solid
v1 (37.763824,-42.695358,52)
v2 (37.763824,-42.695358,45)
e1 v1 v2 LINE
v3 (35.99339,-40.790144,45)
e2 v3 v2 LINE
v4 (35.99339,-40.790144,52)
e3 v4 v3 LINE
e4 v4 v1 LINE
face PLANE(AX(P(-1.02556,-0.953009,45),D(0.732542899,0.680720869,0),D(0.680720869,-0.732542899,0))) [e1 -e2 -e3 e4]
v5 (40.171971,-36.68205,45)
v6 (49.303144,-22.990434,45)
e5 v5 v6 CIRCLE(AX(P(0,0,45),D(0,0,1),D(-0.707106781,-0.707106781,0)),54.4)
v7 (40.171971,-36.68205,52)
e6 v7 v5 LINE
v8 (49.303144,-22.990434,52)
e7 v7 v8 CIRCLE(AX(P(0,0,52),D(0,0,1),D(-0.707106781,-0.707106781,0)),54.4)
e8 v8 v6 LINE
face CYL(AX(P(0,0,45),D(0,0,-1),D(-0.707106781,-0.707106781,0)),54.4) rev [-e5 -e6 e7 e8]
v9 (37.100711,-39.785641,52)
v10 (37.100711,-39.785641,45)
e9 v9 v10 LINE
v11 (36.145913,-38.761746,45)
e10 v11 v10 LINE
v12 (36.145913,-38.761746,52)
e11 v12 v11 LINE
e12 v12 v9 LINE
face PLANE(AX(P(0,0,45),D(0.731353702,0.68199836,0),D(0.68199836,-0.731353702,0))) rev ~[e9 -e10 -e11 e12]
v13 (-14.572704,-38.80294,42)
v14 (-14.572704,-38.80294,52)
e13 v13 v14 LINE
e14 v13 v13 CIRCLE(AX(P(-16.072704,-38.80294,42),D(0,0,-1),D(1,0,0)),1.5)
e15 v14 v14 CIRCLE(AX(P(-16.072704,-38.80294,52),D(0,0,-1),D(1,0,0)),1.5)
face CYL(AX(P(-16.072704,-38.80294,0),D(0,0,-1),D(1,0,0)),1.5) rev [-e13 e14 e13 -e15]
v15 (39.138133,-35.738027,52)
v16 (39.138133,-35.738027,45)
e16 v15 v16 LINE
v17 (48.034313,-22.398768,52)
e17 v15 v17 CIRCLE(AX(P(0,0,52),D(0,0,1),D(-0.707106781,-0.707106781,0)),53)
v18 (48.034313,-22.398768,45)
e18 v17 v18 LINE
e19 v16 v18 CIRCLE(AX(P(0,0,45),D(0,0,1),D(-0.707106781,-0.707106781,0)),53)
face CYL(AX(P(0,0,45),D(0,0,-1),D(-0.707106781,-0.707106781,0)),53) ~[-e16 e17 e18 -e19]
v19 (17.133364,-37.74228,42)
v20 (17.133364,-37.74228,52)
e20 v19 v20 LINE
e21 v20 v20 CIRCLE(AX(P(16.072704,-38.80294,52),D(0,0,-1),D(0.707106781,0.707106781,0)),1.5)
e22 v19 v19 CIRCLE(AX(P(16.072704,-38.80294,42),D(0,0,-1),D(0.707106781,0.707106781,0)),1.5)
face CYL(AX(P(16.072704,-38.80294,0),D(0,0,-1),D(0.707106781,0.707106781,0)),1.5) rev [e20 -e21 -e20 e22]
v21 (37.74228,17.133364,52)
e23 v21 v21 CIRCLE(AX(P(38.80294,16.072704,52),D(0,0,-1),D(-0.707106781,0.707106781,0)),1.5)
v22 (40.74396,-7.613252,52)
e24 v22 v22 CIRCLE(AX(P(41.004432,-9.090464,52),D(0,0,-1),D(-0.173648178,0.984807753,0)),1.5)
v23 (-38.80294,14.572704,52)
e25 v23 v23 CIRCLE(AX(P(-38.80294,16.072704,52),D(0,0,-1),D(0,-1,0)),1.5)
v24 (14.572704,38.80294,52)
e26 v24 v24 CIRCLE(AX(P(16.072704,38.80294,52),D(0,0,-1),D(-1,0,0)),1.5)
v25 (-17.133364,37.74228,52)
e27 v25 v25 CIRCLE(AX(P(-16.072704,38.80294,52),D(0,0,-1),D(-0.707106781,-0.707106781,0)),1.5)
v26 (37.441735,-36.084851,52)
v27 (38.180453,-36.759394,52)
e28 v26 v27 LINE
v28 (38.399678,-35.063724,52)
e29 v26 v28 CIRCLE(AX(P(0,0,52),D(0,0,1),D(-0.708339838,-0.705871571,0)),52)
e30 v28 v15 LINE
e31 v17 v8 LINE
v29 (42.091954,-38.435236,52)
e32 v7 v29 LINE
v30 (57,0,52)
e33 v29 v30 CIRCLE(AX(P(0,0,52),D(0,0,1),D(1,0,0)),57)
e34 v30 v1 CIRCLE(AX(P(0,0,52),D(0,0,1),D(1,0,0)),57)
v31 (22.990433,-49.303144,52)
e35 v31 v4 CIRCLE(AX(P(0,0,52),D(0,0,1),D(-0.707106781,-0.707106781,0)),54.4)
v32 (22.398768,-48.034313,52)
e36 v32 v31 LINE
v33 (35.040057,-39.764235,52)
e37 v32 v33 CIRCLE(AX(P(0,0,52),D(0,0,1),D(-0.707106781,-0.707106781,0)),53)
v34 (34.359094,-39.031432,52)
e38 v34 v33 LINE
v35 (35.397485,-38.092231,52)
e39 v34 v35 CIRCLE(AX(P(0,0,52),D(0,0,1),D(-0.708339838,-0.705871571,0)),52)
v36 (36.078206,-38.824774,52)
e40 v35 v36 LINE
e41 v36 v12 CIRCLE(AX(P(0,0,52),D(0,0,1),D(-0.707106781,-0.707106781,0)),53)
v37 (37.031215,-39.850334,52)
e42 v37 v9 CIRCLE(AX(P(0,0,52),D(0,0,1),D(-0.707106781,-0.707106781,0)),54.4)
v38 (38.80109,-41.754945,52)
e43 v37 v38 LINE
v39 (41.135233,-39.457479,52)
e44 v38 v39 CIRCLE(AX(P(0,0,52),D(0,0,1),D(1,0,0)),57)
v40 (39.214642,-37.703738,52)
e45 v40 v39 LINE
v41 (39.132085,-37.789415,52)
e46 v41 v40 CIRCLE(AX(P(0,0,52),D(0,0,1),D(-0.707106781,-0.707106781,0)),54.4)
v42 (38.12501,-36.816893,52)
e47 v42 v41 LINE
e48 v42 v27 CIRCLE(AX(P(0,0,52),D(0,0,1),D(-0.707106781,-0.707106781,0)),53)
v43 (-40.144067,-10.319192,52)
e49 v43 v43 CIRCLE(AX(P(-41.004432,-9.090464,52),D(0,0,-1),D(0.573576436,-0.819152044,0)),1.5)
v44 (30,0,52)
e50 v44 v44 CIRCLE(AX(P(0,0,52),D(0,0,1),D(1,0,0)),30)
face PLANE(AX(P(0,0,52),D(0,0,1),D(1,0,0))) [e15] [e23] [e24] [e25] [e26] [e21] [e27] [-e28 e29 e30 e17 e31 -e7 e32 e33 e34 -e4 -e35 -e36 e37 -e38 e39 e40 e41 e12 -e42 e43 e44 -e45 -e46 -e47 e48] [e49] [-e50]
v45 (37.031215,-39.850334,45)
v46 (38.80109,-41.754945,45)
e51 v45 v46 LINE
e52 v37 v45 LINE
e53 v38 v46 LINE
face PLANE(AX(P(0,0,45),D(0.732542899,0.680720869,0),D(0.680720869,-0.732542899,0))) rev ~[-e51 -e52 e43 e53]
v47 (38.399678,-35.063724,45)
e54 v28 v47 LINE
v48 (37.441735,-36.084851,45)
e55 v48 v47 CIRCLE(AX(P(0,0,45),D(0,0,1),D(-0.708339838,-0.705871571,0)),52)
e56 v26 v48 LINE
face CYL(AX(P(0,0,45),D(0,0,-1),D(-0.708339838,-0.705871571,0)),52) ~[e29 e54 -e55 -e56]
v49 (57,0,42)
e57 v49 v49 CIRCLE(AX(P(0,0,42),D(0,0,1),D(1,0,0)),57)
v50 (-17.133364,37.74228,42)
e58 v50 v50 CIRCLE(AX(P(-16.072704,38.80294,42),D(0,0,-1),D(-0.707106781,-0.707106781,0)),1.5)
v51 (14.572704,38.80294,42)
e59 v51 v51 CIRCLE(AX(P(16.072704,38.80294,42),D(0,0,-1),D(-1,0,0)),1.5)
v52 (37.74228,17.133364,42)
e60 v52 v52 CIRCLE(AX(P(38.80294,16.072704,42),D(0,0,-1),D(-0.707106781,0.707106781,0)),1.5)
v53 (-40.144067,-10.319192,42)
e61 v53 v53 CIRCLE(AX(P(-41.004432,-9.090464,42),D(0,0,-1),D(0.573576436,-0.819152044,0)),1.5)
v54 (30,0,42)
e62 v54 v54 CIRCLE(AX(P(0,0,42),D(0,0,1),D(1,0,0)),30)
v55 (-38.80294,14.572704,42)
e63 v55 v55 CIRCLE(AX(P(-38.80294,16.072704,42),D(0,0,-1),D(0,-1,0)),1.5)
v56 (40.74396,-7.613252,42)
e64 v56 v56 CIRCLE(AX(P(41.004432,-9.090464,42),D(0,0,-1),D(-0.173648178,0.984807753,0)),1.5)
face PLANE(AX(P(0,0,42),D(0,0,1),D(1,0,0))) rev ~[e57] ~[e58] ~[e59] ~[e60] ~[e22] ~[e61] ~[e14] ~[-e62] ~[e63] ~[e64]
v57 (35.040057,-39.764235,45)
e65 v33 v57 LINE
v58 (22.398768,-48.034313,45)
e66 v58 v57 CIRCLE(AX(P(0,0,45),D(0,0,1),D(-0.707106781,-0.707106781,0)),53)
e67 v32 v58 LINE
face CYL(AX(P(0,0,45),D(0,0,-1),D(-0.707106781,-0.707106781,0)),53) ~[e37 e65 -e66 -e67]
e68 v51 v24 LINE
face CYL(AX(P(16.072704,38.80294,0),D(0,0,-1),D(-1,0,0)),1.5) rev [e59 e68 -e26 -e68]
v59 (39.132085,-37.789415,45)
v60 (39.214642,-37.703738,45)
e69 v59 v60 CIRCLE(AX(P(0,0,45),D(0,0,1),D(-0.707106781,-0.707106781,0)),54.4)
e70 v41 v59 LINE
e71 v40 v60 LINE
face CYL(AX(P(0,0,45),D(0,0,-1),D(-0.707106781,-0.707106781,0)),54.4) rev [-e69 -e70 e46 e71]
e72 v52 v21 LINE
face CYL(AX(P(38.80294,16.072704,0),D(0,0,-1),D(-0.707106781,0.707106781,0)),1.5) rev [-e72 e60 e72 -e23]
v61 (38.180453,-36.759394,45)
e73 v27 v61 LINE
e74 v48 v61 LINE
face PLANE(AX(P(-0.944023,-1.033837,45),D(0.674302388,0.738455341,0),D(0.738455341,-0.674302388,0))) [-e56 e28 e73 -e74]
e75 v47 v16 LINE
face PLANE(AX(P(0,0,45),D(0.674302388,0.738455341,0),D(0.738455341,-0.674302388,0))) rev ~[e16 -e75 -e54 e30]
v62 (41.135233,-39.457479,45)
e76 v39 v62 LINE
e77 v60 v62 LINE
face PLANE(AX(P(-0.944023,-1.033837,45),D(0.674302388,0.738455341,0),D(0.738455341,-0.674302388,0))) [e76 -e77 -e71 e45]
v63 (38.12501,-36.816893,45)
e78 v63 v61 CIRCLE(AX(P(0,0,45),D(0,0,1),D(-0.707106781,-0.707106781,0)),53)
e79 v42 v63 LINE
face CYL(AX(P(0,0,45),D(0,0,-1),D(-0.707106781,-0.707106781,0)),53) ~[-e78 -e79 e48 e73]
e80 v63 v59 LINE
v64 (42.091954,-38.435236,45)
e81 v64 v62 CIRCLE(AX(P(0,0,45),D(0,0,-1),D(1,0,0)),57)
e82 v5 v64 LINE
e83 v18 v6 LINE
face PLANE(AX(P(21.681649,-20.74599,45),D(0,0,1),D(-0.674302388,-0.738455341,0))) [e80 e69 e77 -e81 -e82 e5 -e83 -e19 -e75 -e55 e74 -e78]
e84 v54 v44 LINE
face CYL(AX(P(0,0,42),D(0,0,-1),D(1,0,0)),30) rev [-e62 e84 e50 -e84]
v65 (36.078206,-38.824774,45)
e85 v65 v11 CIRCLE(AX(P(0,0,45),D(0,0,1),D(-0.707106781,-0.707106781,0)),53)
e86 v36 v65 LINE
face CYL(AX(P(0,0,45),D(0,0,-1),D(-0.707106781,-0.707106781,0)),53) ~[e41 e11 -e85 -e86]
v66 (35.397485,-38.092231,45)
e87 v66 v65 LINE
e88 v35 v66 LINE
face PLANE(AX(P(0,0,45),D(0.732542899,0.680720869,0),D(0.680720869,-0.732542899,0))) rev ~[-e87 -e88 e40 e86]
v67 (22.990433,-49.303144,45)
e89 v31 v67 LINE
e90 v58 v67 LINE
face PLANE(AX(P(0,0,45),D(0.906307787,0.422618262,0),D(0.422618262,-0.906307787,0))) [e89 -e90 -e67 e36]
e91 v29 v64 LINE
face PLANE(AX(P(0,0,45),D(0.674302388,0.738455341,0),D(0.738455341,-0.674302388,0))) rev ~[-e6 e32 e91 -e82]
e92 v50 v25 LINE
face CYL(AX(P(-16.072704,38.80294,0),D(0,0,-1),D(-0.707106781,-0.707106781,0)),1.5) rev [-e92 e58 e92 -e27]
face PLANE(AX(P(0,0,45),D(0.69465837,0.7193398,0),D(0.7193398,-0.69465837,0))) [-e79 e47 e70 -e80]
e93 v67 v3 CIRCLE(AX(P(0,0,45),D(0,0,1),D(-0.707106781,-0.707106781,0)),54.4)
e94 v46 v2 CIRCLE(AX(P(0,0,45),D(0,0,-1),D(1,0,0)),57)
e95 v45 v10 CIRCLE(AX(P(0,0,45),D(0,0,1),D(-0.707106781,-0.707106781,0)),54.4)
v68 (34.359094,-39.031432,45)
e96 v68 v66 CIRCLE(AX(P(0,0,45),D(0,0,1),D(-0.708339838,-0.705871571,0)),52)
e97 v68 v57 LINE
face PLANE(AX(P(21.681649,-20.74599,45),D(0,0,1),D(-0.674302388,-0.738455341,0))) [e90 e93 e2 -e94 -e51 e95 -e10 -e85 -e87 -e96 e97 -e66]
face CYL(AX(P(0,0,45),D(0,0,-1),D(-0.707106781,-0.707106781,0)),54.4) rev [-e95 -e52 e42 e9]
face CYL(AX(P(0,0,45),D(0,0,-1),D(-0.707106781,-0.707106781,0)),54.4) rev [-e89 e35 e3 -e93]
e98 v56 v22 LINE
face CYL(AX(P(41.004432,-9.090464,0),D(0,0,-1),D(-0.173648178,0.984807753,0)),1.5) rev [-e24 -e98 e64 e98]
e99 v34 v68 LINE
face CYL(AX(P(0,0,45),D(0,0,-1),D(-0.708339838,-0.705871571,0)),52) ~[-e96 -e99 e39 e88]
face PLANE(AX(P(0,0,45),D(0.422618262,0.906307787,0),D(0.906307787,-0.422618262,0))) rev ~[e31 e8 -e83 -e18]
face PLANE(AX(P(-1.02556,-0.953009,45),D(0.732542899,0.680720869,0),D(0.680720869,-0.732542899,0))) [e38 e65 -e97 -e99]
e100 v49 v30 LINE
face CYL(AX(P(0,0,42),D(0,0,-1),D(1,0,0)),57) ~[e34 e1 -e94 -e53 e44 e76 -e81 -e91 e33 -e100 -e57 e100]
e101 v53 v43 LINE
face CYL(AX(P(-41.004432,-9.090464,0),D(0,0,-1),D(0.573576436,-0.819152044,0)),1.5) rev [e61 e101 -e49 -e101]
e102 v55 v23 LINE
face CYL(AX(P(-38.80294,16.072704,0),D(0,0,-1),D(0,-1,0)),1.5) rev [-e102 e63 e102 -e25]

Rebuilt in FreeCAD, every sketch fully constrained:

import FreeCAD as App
import Part
import Sketcher
from FreeCAD import Vector
Q = App.Units.Quantity

doc = App.newDocument("Part")
body = doc.addObject("PartDesign::Body", "Body")

# Sketch on XY plane
sketch1 = doc.addObject("Sketcher::SketchObject", "Sketch")
body.addObject(sketch1)
sketch1.AttachmentSupport = (doc.XY_Plane, [""])
sketch1.MapMode = "FlatFace"
sketch1.addGeometry(Part.LineSegment(Vector(0, 60, 0), Vector(0, 0, 0)), False)
sketch1.addGeometry(Part.LineSegment(Vector(0, 0, 0), Vector(60, 0, 0)), False)
sketch1.addGeometry(Part.LineSegment(Vector(60, 0, 0), Vector(60, 60, 0)), False)
sketch1.addGeometry(Part.LineSegment(Vector(60, 60, 0), Vector(0, 60, 0)), False)
sketch1.addConstraint(Sketcher.Constraint("Coincident", 0, 2, 1, 1))
sketch1.addConstraint(Sketcher.Constraint("Coincident", 1, 2, 2, 1))
sketch1.addConstraint(Sketcher.Constraint("Coincident", 2, 2, 3, 1))
sketch1.addConstraint(Sketcher.Constraint("Coincident", 3, 2, 0, 1))
sketch1.addConstraint(Sketcher.Constraint("Vertical", 0))
sketch1.addConstraint(Sketcher.Constraint("Horizontal", 1))
sketch1.addConstraint(Sketcher.Constraint("Vertical", 2))
sketch1.addConstraint(Sketcher.Constraint("Horizontal", 3))
sketch1.addConstraint(Sketcher.Constraint("Coincident", 0, 2, -1, 1))
sketch1.addConstraint(Sketcher.Constraint("Equal", 3, 0))
sketch1.addConstraint(Sketcher.Constraint("DistanceX", 1, 1, 1, 2, Q("60 mm")))
pad1 = doc.addObject("PartDesign::Pad", "Pad")
body.addObject(pad1)
pad1.Profile = sketch1
pad1.Length = 7
body2 = doc.addObject("PartDesign::Body", "Body001")
doc.recompute()

body.Placement = App.Placement(Vector(-59.990862, -1.047144, -22), App.Rotation(Vector(0, 0, 1), 1))
boolean = doc.addObject("PartDesign::Boolean", "Boolean")
body2.addObject(boolean)
boolean.Type = "Fuse"
boolean.addObjects([body])
body3 = doc.addObject("PartDesign::Body", "Body002")

# Sketch on XY plane
sketch2 = doc.addObject("Sketcher::SketchObject", "Sketch001")
body3.addObject(sketch2)
sketch2.AttachmentSupport = (doc.getObject("XY_Plane002"), [""])
sketch2.MapMode = "FlatFace"
sketch2.addGeometry(Part.LineSegment(Vector(0, 60, 0), Vector(0, 0, 0)), False)
sketch2.addGeometry(Part.LineSegment(Vector(0, 0, 0), Vector(60, 0, 0)), False)
sketch2.addGeometry(Part.LineSegment(Vector(60, 0, 0), Vector(60, 60, 0)), False)
sketch2.addGeometry(Part.LineSegment(Vector(60, 60, 0), Vector(0, 60, 0)), False)
sketch2.addConstraint(Sketcher.Constraint("Coincident", 0, 2, 1, 1))
sketch2.addConstraint(Sketcher.Constraint("Coincident", 1, 2, 2, 1))
sketch2.addConstraint(Sketcher.Constraint("Coincident", 2, 2, 3, 1))
sketch2.addConstraint(Sketcher.Constraint("Coincident", 3, 2, 0, 1))
sketch2.addConstraint(Sketcher.Constraint("Vertical", 0))
sketch2.addConstraint(Sketcher.Constraint("Horizontal", 1))
sketch2.addConstraint(Sketcher.Constraint("Vertical", 2))
sketch2.addConstraint(Sketcher.Constraint("Horizontal", 3))
sketch2.addConstraint(Sketcher.Constraint("Coincident", 0, 2, -1, 1))
sketch2.addConstraint(Sketcher.Constraint("Equal", 3, 0))
sketch2.addConstraint(Sketcher.Constraint("DistanceX", 1, 1, 1, 2, Q("60 mm")))
pad2 = doc.addObject("PartDesign::Pad", "Pad001")
body3.addObject(pad2)
pad2.Profile = sketch2
pad2.Length = 7
body4 = doc.addObject("PartDesign::Body", "Body003")
body4.AllowCompound = True
doc.recompute()

body3.Placement = App.Placement(Vector(0, 0, -22), App.Rotation(Vector(0, 0, -1), 2))
boolean2 = doc.addObject("PartDesign::Boolean", "Boolean001")
body4.addObject(boolean2)
boolean2.Type = "Fuse"
boolean2.addObjects([body3])
doc.recompute()

boolean3 = doc.addObject("PartDesign::Boolean", "Boolean002")
body4.addObject(boolean3)
boolean3.Type = "Fuse"
boolean3.addObjects([body2])
body5 = doc.addObject("PartDesign::Body", "Body004")

# Sketch on XY plane
sketch3 = doc.addObject("Sketcher::SketchObject", "Sketch002")
body5.addObject(sketch3)
sketch3.AttachmentSupport = (doc.getObject("XY_Plane004"), [""])
sketch3.MapMode = "FlatFace"
sketch3.AttachmentOffset = App.Placement(Vector(0, 0, -22), App.Rotation())
sketch3.addGeometry(Part.LineSegment(Vector(-60, 0, 0), Vector(-60, -60, 0)), False)
sketch3.addGeometry(Part.LineSegment(Vector(-60, -60, 0), Vector(60, -60, 0)), False)
sketch3.addGeometry(Part.LineSegment(Vector(60, -60, 0), Vector(60, 0, 0)), False)
sketch3.addGeometry(Part.LineSegment(Vector(60, 0, 0), Vector(-60, 0, 0)), False)
sketch3.addConstraint(Sketcher.Constraint("Coincident", 0, 2, 1, 1))
sketch3.addConstraint(Sketcher.Constraint("Coincident", 1, 2, 2, 1))
sketch3.addConstraint(Sketcher.Constraint("Coincident", 2, 2, 3, 1))
sketch3.addConstraint(Sketcher.Constraint("Coincident", 3, 2, 0, 1))
sketch3.addConstraint(Sketcher.Constraint("Vertical", 0))
sketch3.addConstraint(Sketcher.Constraint("Horizontal", 1))
sketch3.addConstraint(Sketcher.Constraint("Vertical", 2))
sketch3.addConstraint(Sketcher.Constraint("Horizontal", 3))
sketch3.addConstraint(Sketcher.Constraint("Symmetric", 2, 2, 3, 2, -1, 1))
sketch3.addConstraint(Sketcher.Constraint("DistanceX", 1, 1, 1, 2, Q("120 mm")))
sketch3.addConstraint(Sketcher.Constraint("DistanceY", 0, 2, 0, 1, Q("60 mm")))
pad3 = doc.addObject("PartDesign::Pad", "Pad002")
body5.addObject(pad3)
pad3.Profile = sketch3
pad3.Length = 7
body6 = doc.addObject("PartDesign::Body", "Body005")

# Sketch on XY plane
sketch4 = doc.addObject("Sketcher::SketchObject", "Sketch003")
body6.addObject(sketch4)
sketch4.AttachmentSupport = (doc.getObject("XY_Plane005"), [""])
sketch4.MapMode = "FlatFace"
sketch4.AttachmentOffset = App.Placement(Vector(0, 0, -22), App.Rotation())
sketch4.addGeometry(Part.Circle(Vector(0, 0, 0), Vector(0, 0, 1), 54), False)
sketch4.addGeometry(Part.Circle(Vector(0, 0, 0), Vector(0, 0, 1), 53), False)
sketch4.addConstraint(Sketcher.Constraint("Coincident", 0, 3, -1, 1))
sketch4.addConstraint(Sketcher.Constraint("Coincident", 1, 3, -1, 1))
sketch4.addConstraint(Sketcher.Constraint("Diameter", 1, Q("106 mm")))
sketch4.addConstraint(Sketcher.Constraint("Diameter", 0, Q("108.8 mm")))
pad4 = doc.addObject("PartDesign::Pad", "Pad003")
body6.addObject(pad4)
pad4.Profile = sketch4
pad4.Length = 7
doc.recompute()

boolean4 = doc.addObject("PartDesign::Boolean", "Boolean003")
body6.addObject(boolean4)
boolean4.Type = "Cut"
boolean4.addObjects([body5])
doc.recompute()

boolean5 = doc.addObject("PartDesign::Boolean", "Boolean004")
body6.addObject(boolean5)
boolean5.Type = "Cut"
boolean5.addObjects([body4])
body7 = doc.addObject("PartDesign::Body", "Body006")
doc.recompute()

body6.Placement = App.Placement(Vector(0, 0, -7), App.Rotation(Vector(0, 0, 1), 0))
boolean6 = doc.addObject("PartDesign::Boolean", "Boolean005")
body7.addObject(boolean6)
boolean6.Type = "Fuse"
boolean6.addObjects([body6])
body8 = doc.addObject("PartDesign::Body", "Body007")

# Sketch on XY plane
sketch5 = doc.addObject("Sketcher::SketchObject", "Sketch004")
body8.addObject(sketch5)
sketch5.AttachmentSupport = (doc.getObject("XY_Plane007"), [""])
sketch5.MapMode = "FlatFace"
sketch5.addGeometry(Part.LineSegment(Vector(0, 60, 0), Vector(0, 0, 0)), False)
sketch5.addGeometry(Part.LineSegment(Vector(0, 0, 0), Vector(60, 0, 0)), False)
sketch5.addGeometry(Part.LineSegment(Vector(60, 0, 0), Vector(60, 60, 0)), False)
sketch5.addGeometry(Part.LineSegment(Vector(60, 60, 0), Vector(0, 60, 0)), False)
sketch5.addConstraint(Sketcher.Constraint("Coincident", 0, 2, 1, 1))
sketch5.addConstraint(Sketcher.Constraint("Coincident", 1, 2, 2, 1))
sketch5.addConstraint(Sketcher.Constraint("Coincident", 2, 2, 3, 1))
sketch5.addConstraint(Sketcher.Constraint("Coincident", 3, 2, 0, 1))
sketch5.addConstraint(Sketcher.Constraint("Vertical", 0))
sketch5.addConstraint(Sketcher.Constraint("Horizontal", 1))
sketch5.addConstraint(Sketcher.Constraint("Vertical", 2))
sketch5.addConstraint(Sketcher.Constraint("Horizontal", 3))
sketch5.addConstraint(Sketcher.Constraint("Coincident", 0, 2, -1, 1))
sketch5.addConstraint(Sketcher.Constraint("Equal", 3, 0))
sketch5.addConstraint(Sketcher.Constraint("DistanceX", 1, 1, 1, 2, Q("60 mm")))
pad5 = doc.addObject("PartDesign::Pad", "Pad004")
body8.addObject(pad5)
pad5.Profile = sketch5
pad5.Length = 7
body9 = doc.addObject("PartDesign::Body", "Body008")
doc.recompute()

body8.Placement = App.Placement(Vector(-56.381557, -20.521209, -22), App.Rotation(Vector(0, 0, 1), 20))
boolean7 = doc.addObject("PartDesign::Boolean", "Boolean006")
body9.addObject(boolean7)
boolean7.Type = "Fuse"
boolean7.addObjects([body8])
body10 = doc.addObject("PartDesign::Body", "Body009")

# Sketch on XY plane
sketch6 = doc.addObject("Sketcher::SketchObject", "Sketch005")
body10.addObject(sketch6)
sketch6.AttachmentSupport = (doc.getObject("XY_Plane009"), [""])
sketch6.MapMode = "FlatFace"
sketch6.addGeometry(Part.LineSegment(Vector(0, 60, 0), Vector(0, 0, 0)), False)
sketch6.addGeometry(Part.LineSegment(Vector(0, 0, 0), Vector(60, 0, 0)), False)
sketch6.addGeometry(Part.LineSegment(Vector(60, 0, 0), Vector(60, 60, 0)), False)
sketch6.addGeometry(Part.LineSegment(Vector(60, 60, 0), Vector(0, 60, 0)), False)
sketch6.addConstraint(Sketcher.Constraint("Coincident", 0, 2, 1, 1))
sketch6.addConstraint(Sketcher.Constraint("Coincident", 1, 2, 2, 1))
sketch6.addConstraint(Sketcher.Constraint("Coincident", 2, 2, 3, 1))
sketch6.addConstraint(Sketcher.Constraint("Coincident", 3, 2, 0, 1))
sketch6.addConstraint(Sketcher.Constraint("Vertical", 0))
sketch6.addConstraint(Sketcher.Constraint("Horizontal", 1))
sketch6.addConstraint(Sketcher.Constraint("Vertical", 2))
sketch6.addConstraint(Sketcher.Constraint("Horizontal", 3))
sketch6.addConstraint(Sketcher.Constraint("Coincident", 0, 2, -1, 1))
sketch6.addConstraint(Sketcher.Constraint("Equal", 3, 0))
sketch6.addConstraint(Sketcher.Constraint("DistanceX", 1, 1, 1, 2, Q("60 mm")))
pad6 = doc.addObject("PartDesign::Pad", "Pad005")
body10.addObject(pad6)
pad6.Profile = sketch6
pad6.Length = 7
body11 = doc.addObject("PartDesign::Body", "Body010")
body11.AllowCompound = True
doc.recompute()

body10.Placement = App.Placement(Vector(0, 0, -22), App.Rotation(Vector(0, 0, -1), 20))
boolean8 = doc.addObject("PartDesign::Boolean", "Boolean007")
body11.addObject(boolean8)
boolean8.Type = "Fuse"
boolean8.addObjects([body10])
doc.recompute()

boolean9 = doc.addObject("PartDesign::Boolean", "Boolean008")
body11.addObject(boolean9)
boolean9.Type = "Fuse"
boolean9.addObjects([body9])
body12 = doc.addObject("PartDesign::Body", "Body011")

# Sketch on XY plane
sketch7 = doc.addObject("Sketcher::SketchObject", "Sketch006")
body12.addObject(sketch7)
sketch7.AttachmentSupport = (doc.getObject("XY_Plane011"), [""])
sketch7.MapMode = "FlatFace"
sketch7.AttachmentOffset = App.Placement(Vector(0, 0, -22), App.Rotation())
sketch7.addGeometry(Part.LineSegment(Vector(-60, 0, 0), Vector(-60, -60, 0)), False)
sketch7.addGeometry(Part.LineSegment(Vector(-60, -60, 0), Vector(60, -60, 0)), False)
sketch7.addGeometry(Part.LineSegment(Vector(60, -60, 0), Vector(60, 0, 0)), False)
sketch7.addGeometry(Part.LineSegment(Vector(60, 0, 0), Vector(-60, 0, 0)), False)
sketch7.addConstraint(Sketcher.Constraint("Coincident", 0, 2, 1, 1))
sketch7.addConstraint(Sketcher.Constraint("Coincident", 1, 2, 2, 1))
sketch7.addConstraint(Sketcher.Constraint("Coincident", 2, 2, 3, 1))
sketch7.addConstraint(Sketcher.Constraint("Coincident", 3, 2, 0, 1))
sketch7.addConstraint(Sketcher.Constraint("Vertical", 0))
sketch7.addConstraint(Sketcher.Constraint("Horizontal", 1))
sketch7.addConstraint(Sketcher.Constraint("Vertical", 2))
sketch7.addConstraint(Sketcher.Constraint("Horizontal", 3))
sketch7.addConstraint(Sketcher.Constraint("Symmetric", 2, 2, 3, 2, -1, 1))
sketch7.addConstraint(Sketcher.Constraint("DistanceX", 1, 1, 1, 2, Q("120 mm")))
sketch7.addConstraint(Sketcher.Constraint("DistanceY", 0, 2, 0, 1, Q("60 mm")))
pad7 = doc.addObject("PartDesign::Pad", "Pad006")
body12.addObject(pad7)
pad7.Profile = sketch7
pad7.Length = 7
body13 = doc.addObject("PartDesign::Body", "Body012")

# Sketch on XY plane
sketch8 = doc.addObject("Sketcher::SketchObject", "Sketch007")
body13.addObject(sketch8)
sketch8.AttachmentSupport = (doc.getObject("XY_Plane012"), [""])
sketch8.MapMode = "FlatFace"
sketch8.AttachmentOffset = App.Placement(Vector(0, 0, -22), App.Rotation())
sketch8.addGeometry(Part.Circle(Vector(0, 0, 0), Vector(0, 0, 1), 54), False)
sketch8.addGeometry(Part.Circle(Vector(0, 0, 0), Vector(0, 0, 1), 53), False)
sketch8.addConstraint(Sketcher.Constraint("Coincident", 0, 3, -1, 1))
sketch8.addConstraint(Sketcher.Constraint("Coincident", 1, 3, -1, 1))
sketch8.addConstraint(Sketcher.Constraint("Diameter", 1, Q("106 mm")))
sketch8.addConstraint(Sketcher.Constraint("Diameter", 0, Q("108.8 mm")))
pad8 = doc.addObject("PartDesign::Pad", "Pad007")
body13.addObject(pad8)
pad8.Profile = sketch8
pad8.Length = 7
doc.recompute()

boolean10 = doc.addObject("PartDesign::Boolean", "Boolean009")
body13.addObject(boolean10)
boolean10.Type = "Cut"
boolean10.addObjects([body12])
doc.recompute()

boolean11 = doc.addObject("PartDesign::Boolean", "Boolean010")
body13.addObject(boolean11)
boolean11.Type = "Cut"
boolean11.addObjects([body11])
body14 = doc.addObject("PartDesign::Body", "Body013")
body14.AllowCompound = True
doc.recompute()

body13.Placement = App.Placement(Vector(0, 0, -7), App.Rotation(Vector(0, 0, 1), 0))
boolean12 = doc.addObject("PartDesign::Boolean", "Boolean011")
body14.addObject(boolean12)
boolean12.Type = "Fuse"
boolean12.addObjects([body13])
doc.recompute()

boolean13 = doc.addObject("PartDesign::Boolean", "Boolean012")
body14.addObject(boolean13)
boolean13.Type = "Cut"
boolean13.addObjects([body7])
body15 = doc.addObject("PartDesign::Body", "Body014")
body15.AllowCompound = True
doc.recompute()

body14.Placement = App.Placement(Vector(0, 0, 74), App.Rotation(Vector(0, 0, 1), 225))
boolean14 = doc.addObject("PartDesign::Boolean", "Boolean013")
body15.addObject(boolean14)
boolean14.Type = "Fuse"
boolean14.addObjects([body14])
body16 = doc.addObject("PartDesign::Body", "Body015")

# Sketch on XY plane
sketch9 = doc.addObject("Sketcher::SketchObject", "Sketch008")
body16.addObject(sketch9)
sketch9.AttachmentSupport = (doc.getObject("XY_Plane015"), [""])
sketch9.MapMode = "FlatFace"
sketch9.AttachmentOffset = App.Placement(Vector(0, 0, -22), App.Rotation())
sketch9.addGeometry(Part.Circle(Vector(0, 0, 0), Vector(0, 0, 1), 52), False)
sketch9.addConstraint(Sketcher.Constraint("Coincident", 0, 3, -1, 1))
sketch9.addConstraint(Sketcher.Constraint("Diameter", 0, Q("104 mm")))
pad9 = doc.addObject("PartDesign::Pad", "Pad008")
body16.addObject(pad9)
pad9.Profile = sketch9
pad9.Length = 7
body17 = doc.addObject("PartDesign::Body", "Body016")

# Sketch on XY plane
sketch10 = doc.addObject("Sketcher::SketchObject", "Sketch009")
body17.addObject(sketch10)
sketch10.AttachmentSupport = (doc.getObject("XY_Plane016"), [""])
sketch10.MapMode = "FlatFace"
sketch10.addGeometry(Part.LineSegment(Vector(0, 60, 0), Vector(0, 0, 0)), False)
sketch10.addGeometry(Part.LineSegment(Vector(0, 0, 0), Vector(1.4, 0, 0)), False)
sketch10.addGeometry(Part.LineSegment(Vector(1.4, 0, 0), Vector(1.4, 60, 0)), False)
sketch10.addGeometry(Part.LineSegment(Vector(1.4, 60, 0), Vector(0, 60, 0)), False)
sketch10.addConstraint(Sketcher.Constraint("Coincident", 0, 2, 1, 1))
sketch10.addConstraint(Sketcher.Constraint("Coincident", 1, 2, 2, 1))
sketch10.addConstraint(Sketcher.Constraint("Coincident", 2, 2, 3, 1))
sketch10.addConstraint(Sketcher.Constraint("Coincident", 3, 2, 0, 1))
sketch10.addConstraint(Sketcher.Constraint("Vertical", 0))
sketch10.addConstraint(Sketcher.Constraint("Horizontal", 1))
sketch10.addConstraint(Sketcher.Constraint("Vertical", 2))
sketch10.addConstraint(Sketcher.Constraint("Horizontal", 3))
sketch10.addConstraint(Sketcher.Constraint("Coincident", 0, 2, -1, 1))
sketch10.addConstraint(Sketcher.Constraint("DistanceY", 0, 2, 0, 1, Q("60 mm")))
sketch10.addConstraint(Sketcher.Constraint("DistanceX", 1, 1, 1, 2, Q("1.4 mm")))
pad10 = doc.addObject("PartDesign::Pad", "Pad009")
body17.addObject(pad10)
pad10.Profile = sketch10
pad10.Length = 7
body18 = doc.addObject("PartDesign::Body", "Body017")
doc.recompute()

body17.Placement = App.Placement(Vector(0, 0, -22), App.Rotation(Vector(0, 0, 1), 2.7))
boolean15 = doc.addObject("PartDesign::Boolean", "Boolean014")
body18.addObject(boolean15)
boolean15.Type = "Fuse"
boolean15.addObjects([body17])
body19 = doc.addObject("PartDesign::Body", "Body018")

# Sketch on XY plane
sketch11 = doc.addObject("Sketcher::SketchObject", "Sketch010")
body19.addObject(sketch11)
sketch11.AttachmentSupport = (doc.getObject("XY_Plane018"), [""])
sketch11.MapMode = "FlatFace"
sketch11.addGeometry(Part.LineSegment(Vector(0, 60, 0), Vector(0, 0, 0)), False)
sketch11.addGeometry(Part.LineSegment(Vector(0, 0, 0), Vector(1.4, 0, 0)), False)
sketch11.addGeometry(Part.LineSegment(Vector(1.4, 0, 0), Vector(1.4, 60, 0)), False)
sketch11.addGeometry(Part.LineSegment(Vector(1.4, 60, 0), Vector(0, 60, 0)), False)
sketch11.addConstraint(Sketcher.Constraint("Coincident", 0, 2, 1, 1))
sketch11.addConstraint(Sketcher.Constraint("Coincident", 1, 2, 2, 1))
sketch11.addConstraint(Sketcher.Constraint("Coincident", 2, 2, 3, 1))
sketch11.addConstraint(Sketcher.Constraint("Coincident", 3, 2, 0, 1))
sketch11.addConstraint(Sketcher.Constraint("Vertical", 0))
sketch11.addConstraint(Sketcher.Constraint("Horizontal", 1))
sketch11.addConstraint(Sketcher.Constraint("Vertical", 2))
sketch11.addConstraint(Sketcher.Constraint("Horizontal", 3))
sketch11.addConstraint(Sketcher.Constraint("Coincident", 0, 2, -1, 1))
sketch11.addConstraint(Sketcher.Constraint("DistanceY", 0, 2, 0, 1, Q("60 mm")))
sketch11.addConstraint(Sketcher.Constraint("DistanceX", 1, 1, 1, 2, Q("1.4 mm")))
pad11 = doc.addObject("PartDesign::Pad", "Pad010")
body19.addObject(pad11)
pad11.Profile = sketch11
pad11.Length = 7
body20 = doc.addObject("PartDesign::Body", "Body019")
body20.AllowCompound = True
doc.recompute()

body19.Placement = App.Placement(Vector(0, 0, -22), App.Rotation(Vector(0, 0, -1), 2))
boolean16 = doc.addObject("PartDesign::Boolean", "Boolean015")
body20.addObject(boolean16)
boolean16.Type = "Fuse"
boolean16.addObjects([body19])
doc.recompute()

boolean17 = doc.addObject("PartDesign::Boolean", "Boolean016")
body20.addObject(boolean17)
boolean17.Type = "Fuse"
boolean17.addObjects([body18])
doc.recompute()

boolean18 = doc.addObject("PartDesign::Boolean", "Boolean017")
body20.addObject(boolean18)
boolean18.Type = "Cut"
boolean18.addObjects([body16])
body21 = doc.addObject("PartDesign::Body", "Body020")
body21.AllowCompound = True
doc.recompute()

body20.Placement = App.Placement(Vector(0, 0, 67), App.Rotation(Vector(0, 0, 1), 224.9))
boolean19 = doc.addObject("PartDesign::Boolean", "Boolean018")
body21.addObject(boolean19)
boolean19.Type = "Fuse"
boolean19.addObjects([body20])
body22 = doc.addObject("PartDesign::Body", "Body021")

# Sketch on XY plane
sketch12 = doc.addObject("Sketcher::SketchObject", "Sketch011")
body22.addObject(sketch12)
sketch12.AttachmentSupport = (doc.getObject("XY_Plane021"), [""])
sketch12.MapMode = "FlatFace"
sketch12.addGeometry(Part.Circle(Vector(0, 0, 0), Vector(0, 0, 1), 1.5), False)
sketch12.addConstraint(Sketcher.Constraint("Coincident", 0, 3, -1, 1))
sketch12.addConstraint(Sketcher.Constraint("Diameter", 0, Q("3 mm")))
pad12 = doc.addObject("PartDesign::Pad", "Pad011")
body22.addObject(pad12)
pad12.Profile = sketch12
pad12.Length = 100
body23 = doc.addObject("PartDesign::Body", "Body022")
doc.recompute()

body22.Placement = App.Placement(Vector(41.004432, -9.090464, 0), App.Rotation(Vector(0, 0, 1), 100))
boolean20 = doc.addObject("PartDesign::Boolean", "Boolean019")
body23.addObject(boolean20)
boolean20.Type = "Fuse"
boolean20.addObjects([body22])
body24 = doc.addObject("PartDesign::Body", "Body023")

# Sketch on XY plane
sketch13 = doc.addObject("Sketcher::SketchObject", "Sketch012")
body24.addObject(sketch13)
sketch13.AttachmentSupport = (doc.getObject("XY_Plane023"), [""])
sketch13.MapMode = "FlatFace"
sketch13.addGeometry(Part.Circle(Vector(0, 0, 0), Vector(0, 0, 1), 1.5), False)
sketch13.addConstraint(Sketcher.Constraint("Coincident", 0, 3, -1, 1))
sketch13.addConstraint(Sketcher.Constraint("Diameter", 0, Q("3 mm")))
pad13 = doc.addObject("PartDesign::Pad", "Pad012")
body24.addObject(pad13)
pad13.Profile = sketch13
pad13.Length = 100
body25 = doc.addObject("PartDesign::Body", "Body024")
doc.recompute()

body24.Placement = App.Placement(Vector(38.80294, 16.072704, 0), App.Rotation(Vector(0, 0, 1), 135))
boolean21 = doc.addObject("PartDesign::Boolean", "Boolean020")
body25.addObject(boolean21)
boolean21.Type = "Fuse"
boolean21.addObjects([body24])
body26 = doc.addObject("PartDesign::Body", "Body025")

# Sketch on XY plane
sketch14 = doc.addObject("Sketcher::SketchObject", "Sketch013")
body26.addObject(sketch14)
sketch14.AttachmentSupport = (doc.getObject("XY_Plane025"), [""])
sketch14.MapMode = "FlatFace"
sketch14.addGeometry(Part.Circle(Vector(16.1, 38.8, 0), Vector(0, 0, 1), 1.5), False)
sketch14.addConstraint(Sketcher.Constraint("Diameter", 0, Q("3 mm")))
sketch14.addConstraint(Sketcher.Constraint("DistanceY", -1, 1, 0, 3, Q("38.80294 mm")))
sketch14.addConstraint(Sketcher.Constraint("DistanceX", -1, 1, 0, 3, Q("16.072704 mm")))
pad14 = doc.addObject("PartDesign::Pad", "Pad013")
body26.addObject(pad14)
pad14.Profile = sketch14
pad14.Length = 100
body27 = doc.addObject("PartDesign::Body", "Body026")

# Sketch on XY plane
sketch15 = doc.addObject("Sketcher::SketchObject", "Sketch014")
body27.addObject(sketch15)
sketch15.AttachmentSupport = (doc.getObject("XY_Plane026"), [""])
sketch15.MapMode = "FlatFace"
sketch15.addGeometry(Part.Circle(Vector(0, 0, 0), Vector(0, 0, 1), 1.5), False)
sketch15.addConstraint(Sketcher.Constraint("Coincident", 0, 3, -1, 1))
sketch15.addConstraint(Sketcher.Constraint("Diameter", 0, Q("3 mm")))
pad15 = doc.addObject("PartDesign::Pad", "Pad014")
body27.addObject(pad15)
pad15.Profile = sketch15
pad15.Length = 100
body28 = doc.addObject("PartDesign::Body", "Body027")
doc.recompute()

body27.Placement = App.Placement(Vector(-16.072704, 38.80294, 0), App.Rotation(Vector(0, 0, 1), 225))
boolean22 = doc.addObject("PartDesign::Boolean", "Boolean021")
body28.addObject(boolean22)
boolean22.Type = "Fuse"
boolean22.addObjects([body27])
body29 = doc.addObject("PartDesign::Body", "Body028")

# Sketch on XY plane
sketch16 = doc.addObject("Sketcher::SketchObject", "Sketch015")
body29.addObject(sketch16)
sketch16.AttachmentSupport = (doc.getObject("XY_Plane028"), [""])
sketch16.MapMode = "FlatFace"
sketch16.addGeometry(Part.Circle(Vector(-38.8, 16.1, 0), Vector(0, 0, 1), 1.5), False)
sketch16.addConstraint(Sketcher.Constraint("Diameter", 0, Q("3 mm")))
sketch16.addConstraint(Sketcher.Constraint("DistanceX", 0, 3, -1, 1, Q("38.80294 mm")))
sketch16.addConstraint(Sketcher.Constraint("DistanceY", -1, 1, 0, 3, Q("16.072704 mm")))
pad16 = doc.addObject("PartDesign::Pad", "Pad015")
body29.addObject(pad16)
pad16.Profile = sketch16
pad16.Length = 100
body30 = doc.addObject("PartDesign::Body", "Body029")

# Sketch on XY plane
sketch17 = doc.addObject("Sketcher::SketchObject", "Sketch016")
body30.addObject(sketch17)
sketch17.AttachmentSupport = (doc.getObject("XY_Plane029"), [""])
sketch17.MapMode = "FlatFace"
sketch17.addGeometry(Part.Circle(Vector(0, 0, 0), Vector(0, 0, 1), 1.5), False)
sketch17.addConstraint(Sketcher.Constraint("Coincident", 0, 3, -1, 1))
sketch17.addConstraint(Sketcher.Constraint("Diameter", 0, Q("3 mm")))
pad17 = doc.addObject("PartDesign::Pad", "Pad016")
body30.addObject(pad17)
pad17.Profile = sketch17
pad17.Length = 100
body31 = doc.addObject("PartDesign::Body", "Body030")
doc.recompute()

body30.Placement = App.Placement(Vector(-41.004432, -9.090464, 0), App.Rotation(Vector(0, 0, -1), 55))
boolean23 = doc.addObject("PartDesign::Boolean", "Boolean022")
body31.addObject(boolean23)
boolean23.Type = "Fuse"
boolean23.addObjects([body30])
body32 = doc.addObject("PartDesign::Body", "Body031")

# Sketch on XY plane
sketch18 = doc.addObject("Sketcher::SketchObject", "Sketch017")
body32.addObject(sketch18)
sketch18.AttachmentSupport = (doc.getObject("XY_Plane031"), [""])
sketch18.MapMode = "FlatFace"
sketch18.addGeometry(Part.Circle(Vector(-16.1, -38.8, 0), Vector(0, 0, 1), 1.5), False)
sketch18.addConstraint(Sketcher.Constraint("Diameter", 0, Q("3 mm")))
sketch18.addConstraint(Sketcher.Constraint("DistanceY", 0, 3, -1, 1, Q("38.80294 mm")))
sketch18.addConstraint(Sketcher.Constraint("DistanceX", 0, 3, -1, 1, Q("16.072704 mm")))
pad18 = doc.addObject("PartDesign::Pad", "Pad017")
body32.addObject(pad18)
pad18.Profile = sketch18
pad18.Length = 100
body33 = doc.addObject("PartDesign::Body", "Body032")

# Sketch on XY plane
sketch19 = doc.addObject("Sketcher::SketchObject", "Sketch018")
body33.addObject(sketch19)
sketch19.AttachmentSupport = (doc.getObject("XY_Plane032"), [""])
sketch19.MapMode = "FlatFace"
sketch19.addGeometry(Part.Circle(Vector(0, 0, 0), Vector(0, 0, 1), 1.5), False)
sketch19.addConstraint(Sketcher.Constraint("Coincident", 0, 3, -1, 1))
sketch19.addConstraint(Sketcher.Constraint("Diameter", 0, Q("3 mm")))
pad19 = doc.addObject("PartDesign::Pad", "Pad018")
body33.addObject(pad19)
pad19.Profile = sketch19
pad19.Length = 100
body34 = doc.addObject("PartDesign::Body", "Body033")
body34.AllowCompound = True
doc.recompute()

body33.Placement = App.Placement(Vector(16.072704, -38.80294, 0), App.Rotation(Vector(0, 0, 1), 45))
boolean24 = doc.addObject("PartDesign::Boolean", "Boolean023")
body34.addObject(boolean24)
boolean24.Type = "Fuse"
boolean24.addObjects([body33])
doc.recompute()

boolean25 = doc.addObject("PartDesign::Boolean", "Boolean024")
body34.addObject(boolean25)
boolean25.Type = "Fuse"
boolean25.addObjects([body23])
doc.recompute()

boolean26 = doc.addObject("PartDesign::Boolean", "Boolean025")
body34.addObject(boolean26)
boolean26.Type = "Fuse"
boolean26.addObjects([body25])
doc.recompute()

boolean27 = doc.addObject("PartDesign::Boolean", "Boolean026")
body34.addObject(boolean27)
boolean27.Type = "Fuse"
boolean27.addObjects([body26])
doc.recompute()

boolean28 = doc.addObject("PartDesign::Boolean", "Boolean027")
body34.addObject(boolean28)
boolean28.Type = "Fuse"
boolean28.addObjects([body28])
doc.recompute()

boolean29 = doc.addObject("PartDesign::Boolean", "Boolean028")
body34.addObject(boolean29)
boolean29.Type = "Fuse"
boolean29.addObjects([body29])
doc.recompute()

boolean30 = doc.addObject("PartDesign::Boolean", "Boolean029")
body34.addObject(boolean30)
boolean30.Type = "Fuse"
boolean30.addObjects([body31])
doc.recompute()

boolean31 = doc.addObject("PartDesign::Boolean", "Boolean030")
body34.addObject(boolean31)
boolean31.Type = "Fuse"
boolean31.addObjects([body32])
body35 = doc.addObject("PartDesign::Body", "Body034")

# Sketch on XY plane
sketch20 = doc.addObject("Sketcher::SketchObject", "Sketch019")
body35.addObject(sketch20)
sketch20.AttachmentSupport = (doc.getObject("XY_Plane034"), [""])
sketch20.MapMode = "FlatFace"
sketch20.AttachmentOffset = App.Placement(Vector(0, 0, 42), App.Rotation())
sketch20.addGeometry(Part.Circle(Vector(0, 0, 0), Vector(0, 0, 1), 57), False)
sketch20.addGeometry(Part.Circle(Vector(0, 0, 0), Vector(0, 0, 1), 30), False)
sketch20.addConstraint(Sketcher.Constraint("Coincident", 0, 3, -1, 1))
sketch20.addConstraint(Sketcher.Constraint("Coincident", 1, 3, -1, 1))
sketch20.addConstraint(Sketcher.Constraint("Diameter", 0, Q("114 mm")))
sketch20.addConstraint(Sketcher.Constraint("Diameter", 1, Q("60 mm")))
pad20 = doc.addObject("PartDesign::Pad", "Pad019")
body35.addObject(pad20)
pad20.Profile = sketch20
pad20.Length = 10
doc.recompute()

boolean32 = doc.addObject("PartDesign::Boolean", "Boolean031")
body35.addObject(boolean32)
boolean32.Type = "Cut"
boolean32.addObjects([body34])
doc.recompute()

boolean33 = doc.addObject("PartDesign::Boolean", "Boolean032")
body35.addObject(boolean33)
boolean33.Type = "Cut"
boolean33.addObjects([body21])
doc.recompute()

boolean34 = doc.addObject("PartDesign::Boolean", "Boolean033")
body35.addObject(boolean34)
boolean34.Type = "Cut"
boolean34.addObjects([body15])

doc.recompute()
